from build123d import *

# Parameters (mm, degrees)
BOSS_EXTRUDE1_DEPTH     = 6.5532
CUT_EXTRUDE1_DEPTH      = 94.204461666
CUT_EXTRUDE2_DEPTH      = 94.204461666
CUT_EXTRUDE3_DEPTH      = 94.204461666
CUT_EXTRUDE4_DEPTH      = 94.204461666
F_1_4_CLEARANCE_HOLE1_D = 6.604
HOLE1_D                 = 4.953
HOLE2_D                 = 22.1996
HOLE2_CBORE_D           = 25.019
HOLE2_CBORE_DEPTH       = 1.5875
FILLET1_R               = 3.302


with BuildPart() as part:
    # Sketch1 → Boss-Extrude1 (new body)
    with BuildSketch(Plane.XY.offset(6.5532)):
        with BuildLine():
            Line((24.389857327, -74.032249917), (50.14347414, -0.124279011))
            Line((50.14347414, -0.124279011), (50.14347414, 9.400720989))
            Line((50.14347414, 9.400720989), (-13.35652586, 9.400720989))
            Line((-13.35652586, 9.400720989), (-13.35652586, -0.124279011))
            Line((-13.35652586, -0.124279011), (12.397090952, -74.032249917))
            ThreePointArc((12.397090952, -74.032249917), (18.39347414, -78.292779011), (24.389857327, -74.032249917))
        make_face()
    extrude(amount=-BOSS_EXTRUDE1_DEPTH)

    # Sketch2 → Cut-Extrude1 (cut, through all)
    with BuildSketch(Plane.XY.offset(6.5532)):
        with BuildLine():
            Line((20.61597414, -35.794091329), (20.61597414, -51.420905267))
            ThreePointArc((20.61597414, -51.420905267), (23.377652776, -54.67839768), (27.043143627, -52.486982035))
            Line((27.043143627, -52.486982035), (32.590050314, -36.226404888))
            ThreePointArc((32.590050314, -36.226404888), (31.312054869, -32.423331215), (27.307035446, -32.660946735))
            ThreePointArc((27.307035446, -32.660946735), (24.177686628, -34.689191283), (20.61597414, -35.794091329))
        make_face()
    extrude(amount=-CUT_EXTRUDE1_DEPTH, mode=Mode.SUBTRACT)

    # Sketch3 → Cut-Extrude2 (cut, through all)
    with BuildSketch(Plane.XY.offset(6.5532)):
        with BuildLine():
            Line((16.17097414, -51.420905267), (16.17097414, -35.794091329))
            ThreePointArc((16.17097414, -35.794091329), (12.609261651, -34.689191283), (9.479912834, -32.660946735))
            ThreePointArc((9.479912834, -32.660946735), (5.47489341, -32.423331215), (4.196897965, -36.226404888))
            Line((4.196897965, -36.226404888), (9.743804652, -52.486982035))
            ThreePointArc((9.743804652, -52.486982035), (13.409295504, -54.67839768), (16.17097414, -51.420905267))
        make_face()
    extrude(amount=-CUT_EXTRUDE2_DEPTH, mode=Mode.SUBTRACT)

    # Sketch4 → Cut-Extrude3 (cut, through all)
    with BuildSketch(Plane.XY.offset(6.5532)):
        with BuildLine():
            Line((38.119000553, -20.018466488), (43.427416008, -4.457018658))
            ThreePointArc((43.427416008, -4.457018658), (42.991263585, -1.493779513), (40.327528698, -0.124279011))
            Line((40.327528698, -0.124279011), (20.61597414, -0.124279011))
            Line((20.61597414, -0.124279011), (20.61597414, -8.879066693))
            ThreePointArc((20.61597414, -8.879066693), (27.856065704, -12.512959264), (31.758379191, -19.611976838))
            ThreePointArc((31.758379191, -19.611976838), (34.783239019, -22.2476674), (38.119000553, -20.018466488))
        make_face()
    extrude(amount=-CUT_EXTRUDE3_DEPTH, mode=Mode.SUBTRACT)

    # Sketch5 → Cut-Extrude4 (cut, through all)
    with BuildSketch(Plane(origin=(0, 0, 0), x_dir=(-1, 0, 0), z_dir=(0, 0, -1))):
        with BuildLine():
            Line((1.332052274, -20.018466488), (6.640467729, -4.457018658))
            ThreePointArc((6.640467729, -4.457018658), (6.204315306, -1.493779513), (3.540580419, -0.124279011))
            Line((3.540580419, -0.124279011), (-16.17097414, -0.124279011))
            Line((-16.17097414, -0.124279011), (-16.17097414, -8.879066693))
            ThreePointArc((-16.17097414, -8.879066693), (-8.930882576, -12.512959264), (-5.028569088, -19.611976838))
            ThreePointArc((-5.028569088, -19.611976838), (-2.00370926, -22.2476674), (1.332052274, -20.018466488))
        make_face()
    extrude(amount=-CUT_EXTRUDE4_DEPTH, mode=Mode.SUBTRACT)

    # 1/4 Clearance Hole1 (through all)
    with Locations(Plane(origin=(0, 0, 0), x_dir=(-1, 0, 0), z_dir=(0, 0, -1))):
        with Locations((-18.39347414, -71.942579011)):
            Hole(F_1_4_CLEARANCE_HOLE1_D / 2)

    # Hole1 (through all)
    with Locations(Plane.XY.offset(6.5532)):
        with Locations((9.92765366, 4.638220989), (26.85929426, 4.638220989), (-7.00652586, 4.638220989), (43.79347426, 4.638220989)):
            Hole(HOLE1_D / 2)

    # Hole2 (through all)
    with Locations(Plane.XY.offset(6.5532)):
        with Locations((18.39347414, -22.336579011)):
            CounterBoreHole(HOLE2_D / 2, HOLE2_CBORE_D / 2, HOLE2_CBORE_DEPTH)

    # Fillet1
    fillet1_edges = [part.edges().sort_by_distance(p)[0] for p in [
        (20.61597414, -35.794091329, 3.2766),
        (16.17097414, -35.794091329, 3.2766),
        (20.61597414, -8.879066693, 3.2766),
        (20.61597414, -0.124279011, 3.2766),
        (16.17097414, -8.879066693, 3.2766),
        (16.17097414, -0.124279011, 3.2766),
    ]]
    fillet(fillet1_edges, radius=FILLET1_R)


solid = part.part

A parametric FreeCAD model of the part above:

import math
import FreeCAD as App
import Part
import Sketcher

V = App.Vector
Q = App.Units.Quantity


def edges_at(feature, points):
    """Names of the edges that pass closest to the given points."""
    edges = feature.Shape.Edges
    near = lambda p: min(range(len(edges)), key=lambda i: edges[i].distToShape(Part.Vertex(*p))[0])
    return sorted({f"Edge{near(p) + 1}" for p in points})

doc = App.newDocument("Part")
body = doc.addObject("PartDesign::Body", "Body")

# Sketch on XY plane
sketch1 = doc.addObject("Sketcher::SketchObject", "Sketch")
body.addObject(sketch1)
sketch1.AttachmentSupport = (doc.XY_Plane, [""])
sketch1.MapMode = "FlatFace"
sketch1.AttachmentOffset = App.Placement(V(0, 0, 0.258 * 25.4), App.Rotation())
sketch1.addGeometry(Part.LineSegment(V(24, -74, 0), V(50, 0, 0)), False)
sketch1.addGeometry(Part.LineSegment(V(50, 0, 0), V(50, 9, 0)), False)
sketch1.addGeometry(Part.LineSegment(V(50, 9, 0), V(-13, 9, 0)), False)
sketch1.addGeometry(Part.LineSegment(V(-13, 9, 0), V(-13, 0, 0)), False)
sketch1.addGeometry(Part.LineSegment(V(-13, 0, 0), V(12, -74, 0)), False)
sketch1.addGeometry(Part.ArcOfCircle(Part.Circle(V(18, -72, 0), V(0, 0, 1), 6), math.radians(-161), math.radians(-19)), False)
sketch1.addConstraint(Sketcher.Constraint("Coincident", 0, 2, 1, 1))
sketch1.addConstraint(Sketcher.Constraint("Coincident", 1, 2, 2, 1))
sketch1.addConstraint(Sketcher.Constraint("Coincident", 2, 2, 3, 1))
sketch1.addConstraint(Sketcher.Constraint("Coincident", 3, 2, 4, 1))
sketch1.addConstraint(Sketcher.Constraint("Tangent", 4, 2, 5, 1))
sketch1.addConstraint(Sketcher.Constraint("Tangent", 5, 2, 0, 1))
sketch1.addConstraint(Sketcher.Constraint("Vertical", 1))
sketch1.addConstraint(Sketcher.Constraint("Horizontal", 2))
sketch1.addConstraint(Sketcher.Constraint("Vertical", 3))
sketch1.addConstraint(Sketcher.Constraint("Horizontal", 0, 2, 3, 2))
sketch1.addConstraint(Sketcher.Constraint("Horizontal", 4, 2, 5, 2))
sketch1.addConstraint(Sketcher.Constraint("Radius", 5, Q("0.25 in")))
sketch1.addConstraint(Sketcher.Constraint("DistanceX", 2, 2, 2, 1, Q("2.5 in")))
sketch1.addConstraint(Sketcher.Constraint("DistanceY", 1, 1, 1, 2, Q("0.375 in")))
sketch1.addConstraint(Sketcher.Constraint("DistanceY", 5, 3, 0, 2, Q("2.8275 in")))
sketch1.addConstraint(Sketcher.Constraint("DistanceY", 5, 3, -1, 1, 71.942779))
sketch1.addConstraint(Sketcher.Constraint("DistanceX", -1, 1, 4, 2, 12.397091))
pad1 = doc.addObject("PartDesign::Pad", "Pad")
body.addObject(pad1)
pad1.Profile = sketch1
pad1.Length = Q("0.258 in")
pad1.Reversed = True

# Sketch on XY plane
sketch2 = doc.addObject("Sketcher::SketchObject", "Sketch001")
body.addObject(sketch2)
sketch2.AttachmentSupport = (doc.XY_Plane, [""])
sketch2.MapMode = "FlatFace"
sketch2.AttachmentOffset = App.Placement(V(0, 0, 0.258 * 25.4), App.Rotation())
sketch2.addGeometry(Part.LineSegment(V(20.6, -35.8, 0), V(20.6, -51.4, 0)), False)
sketch2.addGeometry(Part.ArcOfCircle(Part.Circle(V(23.9, -51.4, 0), V(0, 0, 1), 3.3), math.radians(180), math.radians(341)), False)
sketch2.addGeometry(Part.LineSegment(V(27, -52.5, 0), V(32.6, -36.2, 0)), False)
sketch2.addGeometry(Part.ArcOfCircle(Part.Circle(V(29.5, -35.2, 0), V(0, 0, 1), 3.3), math.radians(-19), math.radians(131)), False)
sketch2.addGeometry(Part.ArcOfCircle(Part.Circle(V(18.4, -22.3, 0), V(0, 0, 1), 13.6), math.radians(-81), math.radians(-49)), False)
sketch2.addConstraint(Sketcher.Constraint("Tangent", 0, 2, 1, 1))
sketch2.addConstraint(Sketcher.Constraint("Tangent", 1, 2, 2, 1))
sketch2.addConstraint(Sketcher.Constraint("Tangent", 2, 2, 3, 1))
sketch2.addConstraint(Sketcher.Constraint("Tangent", 3, 2, 4, 2))
sketch2.addConstraint(Sketcher.Constraint("Coincident", 4, 1, 0, 1))
sketch2.addConstraint(Sketcher.Constraint("Vertical", 0))
sketch2.addConstraint(Sketcher.Constraint("Equal", 1, 3))
sketch2.addConstraint(Sketcher.Constraint("Radius", 1, Q("0.13 in")))
sketch2.addConstraint(Sketcher.Constraint("Radius", 4, Q("0.537 in")))
sketch2.addConstraint(Sketcher.Constraint("DistanceX", 4, 3, 1, 3, Q("0.2175 in")))
sketch2.addConstraint(Sketcher.Constraint("DistanceY", 1, 3, 2, 2, 15.1945))
sketch2.addConstraint(Sketcher.Constraint("DistanceY", 0, 2, 0, 1, 15.626814))
sketch2.addConstraint(Sketcher.Constraint("DistanceX", -1, 1, 3, 3, 29.464881))
sketch2.addConstraint(Sketcher.Constraint("DistanceY", 3, 3, -1, 1, 35.160328))
pocket1 = doc.addObject("PartDesign::Pocket", "Pocket")
body.addObject(pocket1)
pocket1.Profile = sketch2
pocket1.Type = "ThroughAll"

# Sketch on XY plane
sketch3 = doc.addObject("Sketcher::SketchObject", "Sketch002")
body.addObject(sketch3)
sketch3.AttachmentSupport = (doc.XY_Plane, [""])
sketch3.MapMode = "FlatFace"
sketch3.AttachmentOffset = App.Placement(V(0, 0, 0.258 * 25.4), App.Rotation())
sketch3.addGeometry(Part.LineSegment(V(16.2, -51.4, 0), V(16.2, -35.8, 0)), False)
sketch3.addGeometry(Part.ArcOfCircle(Part.Circle(V(18.4, -22.3, 0), V(0, 0, 1), 13.6), math.radians(-131), math.radians(-99)), False)
sketch3.addGeometry(Part.ArcOfCircle(Part.Circle(V(7.3, -35.2, 0), V(0, 0, 1), 3.3), math.radians(49), math.radians(199)), False)
sketch3.addGeometry(Part.LineSegment(V(4.2, -36.2, 0), V(9.7, -52.5, 0)), False)
sketch3.addGeometry(Part.ArcOfCircle(Part.Circle(V(12.9, -51.4, 0), V(0, 0, 1), 3.3), math.radians(-161), math.radians(0)), False)
sketch3.addConstraint(Sketcher.Constraint("Coincident", 0, 2, 1, 2))
sketch3.addConstraint(Sketcher.Constraint("Tangent", 1, 1, 2, 1))
sketch3.addConstraint(Sketcher.Constraint("Tangent", 2, 2, 3, 1))
sketch3.addConstraint(Sketcher.Constraint("Tangent", 3, 2, 4, 1))
sketch3.addConstraint(Sketcher.Constraint("Tangent", 4, 2, 0, 1))
sketch3.addConstraint(Sketcher.Constraint("Vertical", 0))
sketch3.addConstraint(Sketcher.Constraint("Equal", 2, 4))
sketch3.addConstraint(Sketcher.Constraint("Radius", 2, Q("0.13 in")))
sketch3.addConstraint(Sketcher.Constraint("Radius", 1, Q("0.537 in")))
sketch3.addConstraint(Sketcher.Constraint("DistanceX", 4, 3, 1, 3, Q("0.2175 in")))
sketch3.addConstraint(Sketcher.Constraint("DistanceY", 4, 3, 2, 2, 15.1945))
sketch3.addConstraint(Sketcher.Constraint("DistanceY", 0, 1, 0, 2, 15.626814))
sketch3.addConstraint(Sketcher.Constraint("DistanceY", 1, 3, -1, 1, 22.336579))
sketch3.addConstraint(Sketcher.Constraint("DistanceX", -1, 1, 1, 3, 18.393474))
pocket2 = doc.addObject("PartDesign::Pocket", "Pocket001")
body.addObject(pocket2)
pocket2.Profile = sketch3
pocket2.Type = "ThroughAll"

# Sketch on XY plane
sketch4 = doc.addObject("Sketcher::SketchObject", "Sketch003")
body.addObject(sketch4)
sketch4.AttachmentSupport = (doc.XY_Plane, [""])
sketch4.MapMode = "FlatFace"
sketch4.AttachmentOffset = App.Placement(V(0, 0, 0.258 * 25.4), App.Rotation())
sketch4.addGeometry(Part.LineSegment(V(38.1, -20, 0), V(43.4, -4.5, 0)), False)
sketch4.addGeometry(Part.ArcOfCircle(Part.Circle(V(40.3, -3.4, 0), V(0, 0, 1), 3.3), math.radians(-19), math.radians(90)), False)
sketch4.addGeometry(Part.LineSegment(V(40.3, -0.1, 0), V(20.6, -0.1, 0)), False)
sketch4.addGeometry(Part.LineSegment(V(20.6, -0.1, 0), V(20.6, -8.9, 0)), False)
sketch4.addGeometry(Part.ArcOfCircle(Part.Circle(V(18.4, -22.3, 0), V(0, 0, 1), 13.6), math.radians(12), math.radians(81)), False)
sketch4.addGeometry(Part.ArcOfCircle(Part.Circle(V(35, -19, 0), V(0, 0, 1), 3.3), math.radians(-168), math.radians(-19)), False)
sketch4.addConstraint(Sketcher.Constraint("Tangent", 0, 2, 1, 1))
sketch4.addConstraint(Sketcher.Constraint("Tangent", 1, 2, 2, 1))
sketch4.addConstraint(Sketcher.Constraint("Coincident", 2, 2, 3, 1))
sketch4.addConstraint(Sketcher.Constraint("Coincident", 3, 2, 4, 2))
sketch4.addConstraint(Sketcher.Constraint("Tangent", 4, 1, 5, 1))
sketch4.addConstraint(Sketcher.Constraint("Tangent", 5, 2, 0, 1))
sketch4.addConstraint(Sketcher.Constraint("Horizontal", 2))
sketch4.addConstraint(Sketcher.Constraint("Vertical", 3))
sketch4.addConstraint(Sketcher.Constraint("Radius", 5, Q("0.13 in")))
sketch4.addConstraint(Sketcher.Constraint("Radius", 4, Q("0.537 in")))
sketch4.addConstraint(Sketcher.Constraint("Radius", 1, 3.275287))
sketch4.addConstraint(Sketcher.Constraint("DistanceY", 4, 3, 1, 2, Q("0.8745 in")))
sketch4.addConstraint(Sketcher.Constraint("DistanceX", 4, 3, 2, 2, Q("0.0875 in")))
sketch4.addConstraint(Sketcher.Constraint("DistanceX", -1, 1, 5, 2, 38.119001))
sketch4.addConstraint(Sketcher.Constraint("DistanceY", 5, 2, 1, 3, 16.6189))
sketch4.addConstraint(Sketcher.Constraint("DistanceX", 2, 2, 2, 1, 19.711555))
sketch4.addConstraint(Sketcher.Constraint("DistanceY", 4, 3, -1, 1, 22.336579))
pocket3 = doc.addObject("PartDesign::Pocket", "Pocket002")
body.addObject(pocket3)
pocket3.Profile = sketch4
pocket3.Type = "ThroughAll"

# Sketch on XY plane
sketch5 = doc.addObject("Sketcher::SketchObject", "Sketch004")
body.addObject(sketch5)
sketch5.AttachmentSupport = (doc.XY_Plane, [""])
sketch5.MapMode = "FlatFace"
sketch5.addGeometry(Part.LineSegment(V(-1.3, -20, 0), V(-6.6, -4.5, 0)), False)
sketch5.addGeometry(Part.ArcOfCircle(Part.Circle(V(-3.5, -3.4, 0), V(0, 0, 1), 3.3), math.radians(90), math.radians(199)), False)
sketch5.addGeometry(Part.LineSegment(V(-3.5, -0.1, 0), V(16.2, -0.1, 0)), False)
sketch5.addGeometry(Part.LineSegment(V(16.2, -0.1, 0), V(16.2, -8.9, 0)), False)
sketch5.addGeometry(Part.ArcOfCircle(Part.Circle(V(18.4, -22.3, 0), V(0, 0, 1), 13.6), math.radians(99), math.radians(168)), False)
sketch5.addGeometry(Part.ArcOfCircle(Part.Circle(V(1.8, -19, 0), V(0, 0, 1), 3.3), math.radians(-161), math.radians(-12)), False)
sketch5.addConstraint(Sketcher.Constraint("Tangent", 0, 2, 1, 2))
sketch5.addConstraint(Sketcher.Constraint("Tangent", 1, 1, 2, 1))
sketch5.addConstraint(Sketcher.Constraint("Coincident", 2, 2, 3, 1))
sketch5.addConstraint(Sketcher.Constraint("Coincident", 3, 2, 4, 1))
sketch5.addConstraint(Sketcher.Constraint("Tangent", 4, 2, 5, 2))
sketch5.addConstraint(Sketcher.Constraint("Tangent", 5, 1, 0, 1))
sketch5.addConstraint(Sketcher.Constraint("Horizontal", 2))
sketch5.addConstraint(Sketcher.Constraint("Vertical", 3))
sketch5.addConstraint(Sketcher.Constraint("Radius", 5, Q("0.13 in")))
sketch5.addConstraint(Sketcher.Constraint("Radius", 4, Q("0.537 in")))
sketch5.addConstraint(Sketcher.Constraint("Radius", 1, 3.275287))
sketch5.addConstraint(Sketcher.Constraint("DistanceY", 4, 3, 1, 1, Q("0.8745 in")))
sketch5.addConstraint(Sketcher.Constraint("DistanceX", 2, 2, 4, 3, Q("0.0875 in")))
sketch5.addConstraint(Sketcher.Constraint("DistanceY", 5, 1, 1, 3, 16.6189))
sketch5.addConstraint(Sketcher.Constraint("DistanceX", 2, 1, 2, 2, 19.711555))
sketch5.addConstraint(Sketcher.Constraint("DistanceX", 1, 3, -1, 1, 3.54058))
sketch5.addConstraint(Sketcher.Constraint("DistanceY", 4, 3, -1, 1, 22.336579))
pocket4 = doc.addObject("PartDesign::Pocket", "Pocket003")
body.addObject(pocket4)
pocket4.Profile = sketch5
pocket4.Type = "ThroughAll"
pocket4.Reversed = True

# Sketch on XY plane
sketch6 = doc.addObject("Sketcher::SketchObject", "Sketch005")
body.addObject(sketch6)
sketch6.AttachmentSupport = (doc.XY_Plane, [""])
sketch6.MapMode = "FlatFace"
sketch6.addGeometry(Part.Circle(V(18.4, -71.9, 0), V(0, 0, 1), 3.3), False)
sketch6.addConstraint(Sketcher.Constraint("Diameter", 0, Q("0.26 in")))
sketch6.addConstraint(Sketcher.Constraint("DistanceY", 0, 3, -1, 1, 71.942579))
sketch6.addConstraint(Sketcher.Constraint("DistanceX", -1, 1, 0, 3, 18.393474))
doc.recompute()
hole = doc.addObject("PartDesign::Hole", "Hole")
body.addObject(hole)
hole.Profile = sketch6
hole.ThreadType = "None"
hole.Diameter = Q("0.26 in")
hole.DepthType = "ThroughAll"
hole.Reversed = True

# Sketch on XY plane
sketch7 = doc.addObject("Sketcher::SketchObject", "Sketch006")
body.addObject(sketch7)
sketch7.AttachmentSupport = (doc.XY_Plane, [""])
sketch7.MapMode = "FlatFace"
sketch7.AttachmentOffset = App.Placement(V(0, 0, 0.258 * 25.4), App.Rotation())
sketch7.addGeometry(Part.Circle(V(9.9, 4.6, 0), V(0, 0, 1), 2.5), False)
sketch7.addGeometry(Part.Circle(V(26.9, 4.6, 0), V(0, 0, 1), 2.5), False)
sketch7.addGeometry(Part.Circle(V(-7, 4.6, 0), V(0, 0, 1), 2.5), False)
sketch7.addGeometry(Part.Circle(V(43.8, 4.6, 0), V(0, 0, 1), 2.5), False)
sketch7.addConstraint(Sketcher.Constraint("Equal", 0, 1))
sketch7.addConstraint(Sketcher.Constraint("Equal", 1, 2))
sketch7.addConstraint(Sketcher.Constraint("Equal", 2, 3))
sketch7.addConstraint(Sketcher.Constraint("Horizontal", 0, 3, 1, 3))
sketch7.addConstraint(Sketcher.Constraint("Horizontal", 1, 3, 2, 3))
sketch7.addConstraint(Sketcher.Constraint("Horizontal", 2, 3, 3, 3))
sketch7.addConstraint(Sketcher.Constraint("Diameter", 0, Q("0.195 in")))
sketch7.addConstraint(Sketcher.Constraint("DistanceX", 2, 3, 3, 3, Q("2 in")))
sketch7.addConstraint(Sketcher.Constraint("DistanceX", 0, 3, 1, 3, Q("0.6666 in")))
sketch7.addConstraint(Sketcher.Constraint("DistanceX", 2, 3, 0, 3, Q("0.6667 in")))
sketch7.addConstraint(Sketcher.Constraint("DistanceY", -1, 1, 0, 3, 4.638221))
sketch7.addConstraint(Sketcher.Constraint("DistanceX", -1, 1, 0, 3, 9.927654))
doc.recompute()
hole2 = doc.addObject("PartDesign::Hole", "Hole001")
body.addObject(hole2)
hole2.Profile = sketch7
hole2.ThreadType = "None"
hole2.Diameter = Q("0.195 in")
hole2.DepthType = "ThroughAll"

# Sketch on XY plane
sketch8 = doc.addObject("Sketcher::SketchObject", "Sketch007")
body.addObject(sketch8)
sketch8.AttachmentSupport = (doc.XY_Plane, [""])
sketch8.MapMode = "FlatFace"
sketch8.AttachmentOffset = App.Placement(V(0, 0, 0.258 * 25.4), App.Rotation())
sketch8.addGeometry(Part.Circle(V(18, -22, 0), V(0, 0, 1), 11), False)
sketch8.addConstraint(Sketcher.Constraint("Diameter", 0, Q("0.874 in")))
sketch8.addConstraint(Sketcher.Constraint("DistanceY", 0, 3, -1, 1, 22.336579))
sketch8.addConstraint(Sketcher.Constraint("DistanceX", -1, 1, 0, 3, 18.393474))
doc.recompute()
hole3 = doc.addObject("PartDesign::Hole", "Hole002")
body.addObject(hole3)
hole3.Profile = sketch8
hole3.ThreadType = "None"
hole3.Diameter = Q("0.874 in")
hole3.DepthType = "ThroughAll"
hole3.HoleCutType = "Counterbore"
hole3.HoleCutDiameter = Q("0.985 in")
hole3.HoleCutDepth = Q("0.0625 in")
doc.recompute()

fillet = doc.addObject("PartDesign::Fillet", "Fillet")
body.addObject(fillet)
fillet.Base = (hole3, edges_at(hole3, [
    (20.616, -35.794, 3.277),
    (16.171, -35.794, 3.277),
    (20.616, -8.879, 3.277),
    (20.616, -0.124, 3.277),
    (16.171, -8.879, 3.277),
    (16.171, -0.124, 3.277),
]))
fillet.Radius = Q("0.13 in")

doc.recompute()
